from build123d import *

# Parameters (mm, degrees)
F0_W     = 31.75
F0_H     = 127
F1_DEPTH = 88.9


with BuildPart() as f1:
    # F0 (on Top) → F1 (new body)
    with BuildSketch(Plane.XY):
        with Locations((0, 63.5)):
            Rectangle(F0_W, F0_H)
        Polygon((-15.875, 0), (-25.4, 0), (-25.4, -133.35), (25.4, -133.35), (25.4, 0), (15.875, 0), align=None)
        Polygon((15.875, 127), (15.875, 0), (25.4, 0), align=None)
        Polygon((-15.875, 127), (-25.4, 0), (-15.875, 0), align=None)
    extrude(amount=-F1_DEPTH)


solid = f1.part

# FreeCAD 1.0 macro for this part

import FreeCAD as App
import Part
import Sketcher
from FreeCAD import Vector
Q = App.Units.Quantity


def add_polygon(sketch, points):
    """Adds a closed chain of lines whose ends are joined by coincident constraints."""
    first, n = sketch.GeometryCount, len(points)
    for a, b in zip(points, points[1:] + points[:1]):
        sketch.addGeometry(Part.LineSegment(App.Vector(*a, 0), App.Vector(*b, 0)), False)
    for i in range(n):
        sketch.addConstraint(Sketcher.Constraint("Coincident", first + i, 2, first + (i + 1) % n, 1))

doc = App.newDocument("Part")
body = doc.addObject("PartDesign::Body", "Body")

sketch1 = body.newObject("Sketcher::SketchObject", "Sketch")
sketch1.AttachmentSupport = (doc.getObject("XY_Plane"), [""])
sketch1.MapMode = "FlatFace"
add_polygon(sketch1, [(-25, 0), (-25, -133), (25, -133), (25, 0), (16, 127), (-16, 127)])
sketch1.addConstraint([
    Sketcher.Constraint("Vertical", 0),
    Sketcher.Constraint("Horizontal", 1),
    Sketcher.Constraint("Vertical", 2),
    Sketcher.Constraint("Horizontal", 4),
    Sketcher.Constraint("Symmetric", 2, 2, 5, 2, -1, 1),
    Sketcher.Constraint("PointOnObject", 2, 2, -1),
    Sketcher.Constraint("Equal", 3, 5),
    Sketcher.Constraint("DistanceX", 1, 1, 1, 2, Q("2 in")),
    Sketcher.Constraint("DistanceY", -1, 1, 3, 2, Q("5 in")),
    Sketcher.Constraint("DistanceX", 4, 2, 4, 1, Q("1.25 in")),
    Sketcher.Constraint("DistanceY", 0, 2, 0, 1, Q("5.25 in")),
])
pad1 = body.newObject("PartDesign::Pad", "Pad")
pad1.Profile = sketch1
pad1.Length = Q("3.5 in")
pad1.Reversed = True

doc.recompute()
